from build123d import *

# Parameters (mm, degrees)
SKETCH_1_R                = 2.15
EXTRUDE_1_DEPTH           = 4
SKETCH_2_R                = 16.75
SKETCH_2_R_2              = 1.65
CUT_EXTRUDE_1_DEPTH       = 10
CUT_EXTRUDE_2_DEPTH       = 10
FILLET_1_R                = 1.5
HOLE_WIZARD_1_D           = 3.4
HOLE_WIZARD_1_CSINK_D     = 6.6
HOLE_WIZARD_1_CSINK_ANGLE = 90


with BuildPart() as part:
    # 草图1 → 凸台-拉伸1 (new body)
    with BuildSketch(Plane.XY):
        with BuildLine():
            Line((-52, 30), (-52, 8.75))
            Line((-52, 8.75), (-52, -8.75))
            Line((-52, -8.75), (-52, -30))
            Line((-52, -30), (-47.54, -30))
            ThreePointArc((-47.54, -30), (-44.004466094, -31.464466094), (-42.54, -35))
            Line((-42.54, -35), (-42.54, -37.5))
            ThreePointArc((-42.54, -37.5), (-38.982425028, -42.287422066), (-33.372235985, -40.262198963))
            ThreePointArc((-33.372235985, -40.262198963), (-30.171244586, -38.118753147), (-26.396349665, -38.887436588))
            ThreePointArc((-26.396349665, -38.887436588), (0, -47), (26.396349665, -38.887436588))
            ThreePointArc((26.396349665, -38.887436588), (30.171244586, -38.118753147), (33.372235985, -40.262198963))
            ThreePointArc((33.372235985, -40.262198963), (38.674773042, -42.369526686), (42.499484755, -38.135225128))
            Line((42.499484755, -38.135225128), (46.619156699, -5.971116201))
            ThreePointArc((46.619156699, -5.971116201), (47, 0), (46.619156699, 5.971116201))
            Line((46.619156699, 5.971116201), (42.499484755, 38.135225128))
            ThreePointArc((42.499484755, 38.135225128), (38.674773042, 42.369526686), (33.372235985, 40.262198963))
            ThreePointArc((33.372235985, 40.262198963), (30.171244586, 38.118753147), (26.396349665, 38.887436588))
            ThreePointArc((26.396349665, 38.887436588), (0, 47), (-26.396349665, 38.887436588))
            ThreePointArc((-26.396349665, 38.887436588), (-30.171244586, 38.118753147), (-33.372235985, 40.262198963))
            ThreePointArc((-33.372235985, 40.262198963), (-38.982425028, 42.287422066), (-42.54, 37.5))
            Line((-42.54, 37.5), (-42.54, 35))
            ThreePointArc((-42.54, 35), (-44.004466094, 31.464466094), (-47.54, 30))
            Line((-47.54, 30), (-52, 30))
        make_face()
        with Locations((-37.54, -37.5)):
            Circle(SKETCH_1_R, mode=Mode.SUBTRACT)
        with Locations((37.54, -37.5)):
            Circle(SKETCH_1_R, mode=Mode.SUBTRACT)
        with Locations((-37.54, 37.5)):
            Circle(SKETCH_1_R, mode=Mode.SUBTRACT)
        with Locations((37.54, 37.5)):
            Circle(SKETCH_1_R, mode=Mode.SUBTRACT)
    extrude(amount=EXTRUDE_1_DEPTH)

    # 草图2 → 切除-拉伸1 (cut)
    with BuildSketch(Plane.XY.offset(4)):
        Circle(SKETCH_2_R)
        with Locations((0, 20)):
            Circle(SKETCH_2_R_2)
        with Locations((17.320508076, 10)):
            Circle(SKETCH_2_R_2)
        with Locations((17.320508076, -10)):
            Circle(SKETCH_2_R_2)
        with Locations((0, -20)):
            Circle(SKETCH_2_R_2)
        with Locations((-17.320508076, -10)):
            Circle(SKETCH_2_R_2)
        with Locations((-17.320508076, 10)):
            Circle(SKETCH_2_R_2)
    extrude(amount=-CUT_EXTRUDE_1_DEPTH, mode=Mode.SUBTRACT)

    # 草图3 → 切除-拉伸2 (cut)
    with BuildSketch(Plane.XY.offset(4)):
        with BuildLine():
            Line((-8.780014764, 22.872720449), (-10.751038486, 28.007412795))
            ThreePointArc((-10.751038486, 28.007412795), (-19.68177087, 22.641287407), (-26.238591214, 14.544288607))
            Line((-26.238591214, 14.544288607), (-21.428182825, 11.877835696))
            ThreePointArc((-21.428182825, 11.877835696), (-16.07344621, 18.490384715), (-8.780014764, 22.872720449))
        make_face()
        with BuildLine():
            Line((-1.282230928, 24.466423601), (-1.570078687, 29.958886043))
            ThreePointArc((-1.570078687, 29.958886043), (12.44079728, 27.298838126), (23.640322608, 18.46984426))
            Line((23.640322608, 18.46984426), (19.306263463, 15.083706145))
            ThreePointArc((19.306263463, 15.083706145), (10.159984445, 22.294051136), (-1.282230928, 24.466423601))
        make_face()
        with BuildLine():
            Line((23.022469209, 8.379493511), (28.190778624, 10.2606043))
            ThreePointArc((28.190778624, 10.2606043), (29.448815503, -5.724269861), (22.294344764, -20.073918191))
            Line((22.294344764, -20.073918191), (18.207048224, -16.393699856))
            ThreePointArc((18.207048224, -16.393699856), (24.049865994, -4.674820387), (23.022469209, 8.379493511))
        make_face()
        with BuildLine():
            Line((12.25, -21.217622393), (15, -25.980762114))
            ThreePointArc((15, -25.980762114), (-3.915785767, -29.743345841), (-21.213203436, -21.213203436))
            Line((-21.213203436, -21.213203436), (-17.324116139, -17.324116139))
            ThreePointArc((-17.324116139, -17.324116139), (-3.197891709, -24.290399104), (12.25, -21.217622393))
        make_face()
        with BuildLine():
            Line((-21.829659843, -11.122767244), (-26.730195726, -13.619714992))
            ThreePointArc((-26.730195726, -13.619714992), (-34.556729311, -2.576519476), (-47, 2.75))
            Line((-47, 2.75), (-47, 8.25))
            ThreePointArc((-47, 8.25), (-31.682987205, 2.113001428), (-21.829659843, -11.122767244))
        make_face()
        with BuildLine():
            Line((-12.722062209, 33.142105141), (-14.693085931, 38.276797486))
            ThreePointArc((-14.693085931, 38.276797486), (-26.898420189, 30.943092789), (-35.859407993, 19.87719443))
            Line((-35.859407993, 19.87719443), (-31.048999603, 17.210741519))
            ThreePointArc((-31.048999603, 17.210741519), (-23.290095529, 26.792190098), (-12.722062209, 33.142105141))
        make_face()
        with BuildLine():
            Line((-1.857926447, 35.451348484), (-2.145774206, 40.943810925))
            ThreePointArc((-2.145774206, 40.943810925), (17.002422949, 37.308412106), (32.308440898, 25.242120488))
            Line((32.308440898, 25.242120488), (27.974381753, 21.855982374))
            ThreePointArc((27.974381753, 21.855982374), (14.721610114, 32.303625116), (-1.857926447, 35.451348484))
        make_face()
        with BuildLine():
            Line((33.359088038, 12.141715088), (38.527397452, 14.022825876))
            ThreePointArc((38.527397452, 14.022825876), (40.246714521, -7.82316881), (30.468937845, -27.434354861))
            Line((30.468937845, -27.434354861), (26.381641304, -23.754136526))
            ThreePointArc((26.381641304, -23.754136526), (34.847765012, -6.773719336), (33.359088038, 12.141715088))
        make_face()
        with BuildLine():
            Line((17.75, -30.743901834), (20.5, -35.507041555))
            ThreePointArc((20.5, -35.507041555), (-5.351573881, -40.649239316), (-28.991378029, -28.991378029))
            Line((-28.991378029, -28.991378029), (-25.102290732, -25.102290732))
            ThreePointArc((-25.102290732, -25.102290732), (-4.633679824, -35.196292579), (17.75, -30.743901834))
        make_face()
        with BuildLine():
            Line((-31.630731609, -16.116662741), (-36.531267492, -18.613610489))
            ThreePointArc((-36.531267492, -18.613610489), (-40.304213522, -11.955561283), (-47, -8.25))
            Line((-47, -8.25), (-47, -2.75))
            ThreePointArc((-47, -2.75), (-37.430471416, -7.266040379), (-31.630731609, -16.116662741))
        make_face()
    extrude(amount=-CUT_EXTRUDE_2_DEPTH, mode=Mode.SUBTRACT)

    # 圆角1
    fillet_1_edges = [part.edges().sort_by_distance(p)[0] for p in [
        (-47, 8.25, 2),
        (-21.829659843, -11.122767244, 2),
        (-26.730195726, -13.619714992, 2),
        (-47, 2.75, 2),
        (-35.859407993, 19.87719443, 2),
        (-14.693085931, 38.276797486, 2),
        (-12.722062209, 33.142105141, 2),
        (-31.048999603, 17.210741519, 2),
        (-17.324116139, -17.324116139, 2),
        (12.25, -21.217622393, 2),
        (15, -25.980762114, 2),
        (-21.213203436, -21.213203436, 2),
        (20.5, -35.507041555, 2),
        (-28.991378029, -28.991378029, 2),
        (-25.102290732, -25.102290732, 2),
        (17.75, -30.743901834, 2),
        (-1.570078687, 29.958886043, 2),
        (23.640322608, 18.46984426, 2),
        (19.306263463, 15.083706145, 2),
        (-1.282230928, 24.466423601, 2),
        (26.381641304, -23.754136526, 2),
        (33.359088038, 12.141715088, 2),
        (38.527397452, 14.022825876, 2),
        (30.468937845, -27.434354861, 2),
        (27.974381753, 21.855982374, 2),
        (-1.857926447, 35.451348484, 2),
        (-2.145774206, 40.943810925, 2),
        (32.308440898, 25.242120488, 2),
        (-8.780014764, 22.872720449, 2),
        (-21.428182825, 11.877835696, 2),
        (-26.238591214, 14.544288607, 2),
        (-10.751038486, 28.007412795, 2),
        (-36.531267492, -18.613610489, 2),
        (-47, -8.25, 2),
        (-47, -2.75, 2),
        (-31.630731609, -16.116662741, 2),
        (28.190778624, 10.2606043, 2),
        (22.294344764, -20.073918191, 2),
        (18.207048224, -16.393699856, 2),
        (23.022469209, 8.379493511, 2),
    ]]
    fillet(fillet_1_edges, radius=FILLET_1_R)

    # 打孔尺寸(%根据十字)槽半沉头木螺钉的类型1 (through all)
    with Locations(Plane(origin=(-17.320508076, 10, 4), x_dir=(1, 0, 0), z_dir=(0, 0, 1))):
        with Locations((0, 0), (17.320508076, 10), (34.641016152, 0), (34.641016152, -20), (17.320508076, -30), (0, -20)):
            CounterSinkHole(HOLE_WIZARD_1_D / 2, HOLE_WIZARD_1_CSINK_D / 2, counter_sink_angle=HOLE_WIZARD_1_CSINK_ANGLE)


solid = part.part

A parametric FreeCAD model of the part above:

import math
import FreeCAD as App
import Part
import Sketcher
Q = App.Units.Quantity


def edges_at(feature, points):
    """Names of the edges that pass closest to the given points."""
    edges = feature.Shape.Edges
    near = lambda p: min(range(len(edges)), key=lambda i: edges[i].distToShape(Part.Vertex(*p))[0])
    return sorted({f"Edge{near(p) + 1}" for p in points})

doc = App.newDocument("Part")
params = doc.addObject("Spreadsheet::Sheet", "Params")
for row, (alias, value) in enumerate([
    ("sketch1_radius", "5 mm"),
    ("sketch1_radius2", "47 mm"),
    ("sketch1_diameter", "4.3 mm"),
    ("sketch1_height", "60 mm"),
    ("sketch1_height2", "2.5 mm"),
    ("pad1_length", "4 mm"),
    ("sketch2_diameter", "33.5 mm"),
    ("sketch2_diameter2", "3.3 mm"),
    ("pocket1_length", "10 mm"),
    ("sketch3_radius", "30 mm"),
    ("sketch3_radius2", "41 mm"),
    ("sketch3_radius3", "24.5 mm"),
    ("sketch3_height", "5.5 mm"),
    ("pocket2_length", "10 mm"),
    ("fillet_radius", "1.5 mm"),
    ("sketch4_diameter", "3.4 mm"),
    ("hole_diameter", "3.4 mm"),
    ("hole_csink_diameter", "6.6 mm"),
], start=1):
    params.set(f"A{row}", alias)
    params.set(f"B{row}", "=" + value)
    params.setAlias(f"B{row}", alias)

body = doc.addObject("PartDesign::Body", "Body")

# Sketch on XY plane
sketch1 = doc.addObject("Sketcher::SketchObject", "Sketch")
body.addObject(sketch1)
sketch1.AttachmentSupport = (doc.XY_Plane, [""])
sketch1.MapMode = "FlatFace"
sketch1.addGeometry([
    Part.LineSegment(App.Vector(-52, 30, 0), App.Vector(-52, -30, 0)),  # 0
    Part.LineSegment(App.Vector(-52, -30, 0), App.Vector(-47.5, -30, 0)),  # 1
    Part.ArcOfCircle(Part.Circle(App.Vector(-47.5, -35, 0), App.Vector(0, 0, 1), 5), math.radians(0), math.radians(90)),  # 2
    Part.LineSegment(App.Vector(-42.5, -35, 0), App.Vector(-42.5, -37.5, 0)),  # 3
    Part.ArcOfCircle(Part.Circle(App.Vector(-37.5, -37.5, 0), App.Vector(0, 0, 1), 5), math.radians(180), math.radians(326)),  # 4
    Part.ArcOfCircle(Part.Circle(App.Vector(-29.2, -43, 0), App.Vector(0, 0, 1), 5), math.radians(56), math.radians(146)),  # 5
    Part.ArcOfCircle(Part.Circle(App.Vector(0, 0, 0), App.Vector(0, 0, 1), 47), math.radians(-124), math.radians(-56)),  # 6
    Part.ArcOfCircle(Part.Circle(App.Vector(29.2, -43, 0), App.Vector(0, 0, 1), 5), math.radians(34), math.radians(124)),  # 7
    Part.ArcOfCircle(Part.Circle(App.Vector(37.5, -37.5, 0), App.Vector(0, 0, 1), 5), math.radians(-146), math.radians(-7)),  # 8
    Part.LineSegment(App.Vector(42.5, -38.1, 0), App.Vector(46.6, -6, 0)),  # 9
    Part.ArcOfCircle(Part.Circle(App.Vector(0, 0, 0), App.Vector(0, 0, 1), 47), math.radians(-7.3), math.radians(7.3)),  # 10
    Part.LineSegment(App.Vector(46.6, 6, 0), App.Vector(42.5, 38.1, 0)),  # 11
    Part.ArcOfCircle(Part.Circle(App.Vector(37.5, 37.5, 0), App.Vector(0, 0, 1), 5), math.radians(7), math.radians(146)),  # 12
    Part.ArcOfCircle(Part.Circle(App.Vector(29.2, 43, 0), App.Vector(0, 0, 1), 5), math.radians(-124), math.radians(-34)),  # 13
    Part.ArcOfCircle(Part.Circle(App.Vector(0, 0, 0), App.Vector(0, 0, 1), 47), math.radians(56), math.radians(124)),  # 14
    Part.ArcOfCircle(Part.Circle(App.Vector(-29.2, 43, 0), App.Vector(0, 0, 1), 5), math.radians(-146), math.radians(-56)),  # 15
    Part.ArcOfCircle(Part.Circle(App.Vector(-37.5, 37.5, 0), App.Vector(0, 0, 1), 5), math.radians(34), math.radians(180)),  # 16
    Part.LineSegment(App.Vector(-42.5, 37.5, 0), App.Vector(-42.5, 35, 0)),  # 17
    Part.ArcOfCircle(Part.Circle(App.Vector(-47.5, 35, 0), App.Vector(0, 0, 1), 5), math.radians(-90), math.radians(0)),  # 18
    Part.LineSegment(App.Vector(-47.5, 30, 0), App.Vector(-52, 30, 0)),  # 19
    Part.Circle(App.Vector(-37.5, -37.5, 0), App.Vector(0, 0, 1), 2.1),  # 20
    Part.Circle(App.Vector(37.5, -37.5, 0), App.Vector(0, 0, 1), 2.1),  # 21
    Part.Circle(App.Vector(-37.5, 37.5, 0), App.Vector(0, 0, 1), 2.1),  # 22
    Part.Circle(App.Vector(37.5, 37.5, 0), App.Vector(0, 0, 1), 2.1),  # 23
], False)
sketch1.addConstraint([
    Sketcher.Constraint("Coincident", 0, 2, 1, 1),
    Sketcher.Constraint("Tangent", 1, 2, 2, 2),
    Sketcher.Constraint("Tangent", 2, 1, 3, 1),
    Sketcher.Constraint("Tangent", 3, 2, 4, 1),
    Sketcher.Constraint("Tangent", 4, 2, 5, 2),
    Sketcher.Constraint("Tangent", 5, 1, 6, 1),
    Sketcher.Constraint("Tangent", 6, 2, 7, 2),
    Sketcher.Constraint("Tangent", 7, 1, 8, 1),
    Sketcher.Constraint("Tangent", 8, 2, 9, 1),
    Sketcher.Constraint("Tangent", 9, 2, 10, 1),
    Sketcher.Constraint("Tangent", 10, 2, 11, 1),
    Sketcher.Constraint("Tangent", 11, 2, 12, 1),
    Sketcher.Constraint("Tangent", 12, 2, 13, 2),
    Sketcher.Constraint("Tangent", 13, 1, 14, 1),
    Sketcher.Constraint("Tangent", 14, 2, 15, 2),
    Sketcher.Constraint("Tangent", 15, 1, 16, 1),
    Sketcher.Constraint("Tangent", 16, 2, 17, 1),
    Sketcher.Constraint("Tangent", 17, 2, 18, 2),
    Sketcher.Constraint("Tangent", 18, 1, 19, 1),
    Sketcher.Constraint("Coincident", 19, 2, 0, 1),
    Sketcher.Constraint("Vertical", 0),
    Sketcher.Constraint("Horizontal", 1),
    Sketcher.Constraint("Vertical", 3),
    Sketcher.Constraint("Vertical", 17),
    Sketcher.Constraint("Horizontal", 19),
    Sketcher.Constraint("Coincident", 6, 3, -1, 1),
    Sketcher.Constraint("Coincident", 10, 3, -1, 1),
    Sketcher.Constraint("Coincident", 14, 3, -1, 1),
    Sketcher.Constraint("Coincident", 20, 3, 4, 3),
    Sketcher.Constraint("Coincident", 21, 3, 8, 3),
    Sketcher.Constraint("Coincident", 22, 3, 16, 3),
    Sketcher.Constraint("Coincident", 23, 3, 12, 3),
    Sketcher.Constraint("Equal", 2, 4),
    Sketcher.Constraint("Equal", 4, 5),
    Sketcher.Constraint("Equal", 5, 7),
    Sketcher.Constraint("Equal", 7, 8),
    Sketcher.Constraint("Equal", 6, 10),
    Sketcher.Constraint("Equal", 8, 12),
    Sketcher.Constraint("Equal", 12, 13),
    Sketcher.Constraint("Equal", 10, 14),
    Sketcher.Constraint("Equal", 13, 15),
    Sketcher.Constraint("Equal", 15, 16),
    Sketcher.Constraint("Equal", 16, 18),
    Sketcher.Constraint("Equal", 20, 21),
    Sketcher.Constraint("Equal", 21, 22),
    Sketcher.Constraint("Equal", 22, 23),
    Sketcher.Constraint("Symmetric", 4, 3, 12, 3, -1, 1),
    Sketcher.Constraint("Symmetric", 8, 3, 16, 3, -1, 1),
    Sketcher.Constraint("Symmetric", 4, 3, 8, 3, -2),
    Sketcher.Constraint("Equal", 3, 17),
    Sketcher.Constraint("Radius", 2, 5.0),
    Sketcher.Constraint("Radius", 6, 47.0),
    Sketcher.Constraint("Diameter", 20, 4.3),
    Sketcher.Constraint("DistanceY", 0, 2, 0, 1, 60.0),
    Sketcher.Constraint("DistanceY", 3, 2, 3, 1, 2.5),
    Sketcher.Constraint("DistanceX", 0, 2, -1, 1, 52.0),
    Sketcher.Constraint("DistanceX", 1, 1, 1, 2, 4.46),
])
sketch1.setExpression("Constraints[50]", "Params.sketch1_radius")
sketch1.setExpression("Constraints[51]", "Params.sketch1_radius2")
sketch1.setExpression("Constraints[52]", "Params.sketch1_diameter")
sketch1.setExpression("Constraints[53]", "Params.sketch1_height")
sketch1.setExpression("Constraints[54]", "Params.sketch1_height2")
pad1 = doc.addObject("PartDesign::Pad", "Pad")
body.addObject(pad1)
pad1.Profile = sketch1
pad1.setExpression("Length", "Params.pad1_length")

# Sketch on XY plane
sketch2 = doc.addObject("Sketcher::SketchObject", "Sketch001")
body.addObject(sketch2)
sketch2.AttachmentSupport = (doc.XY_Plane, [""])
sketch2.MapMode = "FlatFace"
sketch2.AttachmentOffset = App.Placement(App.Vector(0, 0, 4), App.Rotation())
sketch2.addGeometry([
    Part.Circle(App.Vector(0, 0, 0), App.Vector(0, 0, 1), 16.8),  # 0
    Part.Circle(App.Vector(0, 20, 0), App.Vector(0, 0, 1), 1.6),  # 1
    Part.Circle(App.Vector(17.3, 10, 0), App.Vector(0, 0, 1), 1.6),  # 2
    Part.Circle(App.Vector(17.3, -10, 0), App.Vector(0, 0, 1), 1.6),  # 3
    Part.Circle(App.Vector(0, -20, 0), App.Vector(0, 0, 1), 1.6),  # 4
    Part.Circle(App.Vector(-17.3, -10, 0), App.Vector(0, 0, 1), 1.6),  # 5
    Part.Circle(App.Vector(-17.3, 10, 0), App.Vector(0, 0, 1), 1.6),  # 6
], False)
sketch2.addConstraint([
    Sketcher.Constraint("Coincident", 0, 3, -1, 1),
    Sketcher.Constraint("Equal", 1, 2),
    Sketcher.Constraint("Equal", 2, 3),
    Sketcher.Constraint("Equal", 3, 4),
    Sketcher.Constraint("Equal", 4, 5),
    Sketcher.Constraint("Equal", 5, 6),
    Sketcher.Constraint("Symmetric", 1, 3, 4, 3, -1, 1),
    Sketcher.Constraint("Symmetric", 2, 3, 5, 3, -1, 1),
    Sketcher.Constraint("Symmetric", 3, 3, 6, 3, -1, 1),
    Sketcher.Constraint("Symmetric", 3, 3, 5, 3, -2),
    Sketcher.Constraint("PointOnObject", 1, 3, -2),
    Sketcher.Constraint("Diameter", 0, 33.5),
    Sketcher.Constraint("Diameter", 1, 3.3),
    Sketcher.Constraint("DistanceY", -1, 1, 1, 3, 20.0),
    Sketcher.Constraint("DistanceY", -1, 1, 2, 3, 10.0),
    Sketcher.Constraint("DistanceX", -1, 1, 2, 3, 17.320508),
])
sketch2.setExpression("Constraints[11]", "Params.sketch2_diameter")
sketch2.setExpression("Constraints[12]", "Params.sketch2_diameter2")
pocket1 = doc.addObject("PartDesign::Pocket", "Pocket")
body.addObject(pocket1)
pocket1.Profile = sketch2
pocket1.setExpression("Length", "Params.pocket1_length")

# Sketch on XY plane
sketch3 = doc.addObject("Sketcher::SketchObject", "Sketch002")
body.addObject(sketch3)
sketch3.AttachmentSupport = (doc.XY_Plane, [""])
sketch3.MapMode = "FlatFace"
sketch3.AttachmentOffset = App.Placement(App.Vector(0, 0, 4), App.Rotation())
sketch3.addGeometry([
    Part.LineSegment(App.Vector(-9, 23, 0), App.Vector(-11, 28, 0)),  # 0
    Part.ArcOfCircle(Part.Circle(App.Vector(0, 0, 0), App.Vector(0, 0, 1), 30), math.radians(111), math.radians(151)),  # 1
    Part.LineSegment(App.Vector(-26, 15, 0), App.Vector(-21, 12, 0)),  # 2
    Part.ArcOfCircle(Part.Circle(App.Vector(0, 0, 0), App.Vector(0, 0, 1), 25), math.radians(111), math.radians(151)),  # 3
    Part.LineSegment(App.Vector(-2, 30, 0), App.Vector(-1, 24, 0)),  # 4
    Part.ArcOfCircle(Part.Circle(App.Vector(0, 0, 0), App.Vector(0, 0, 1), 24), math.radians(38), math.radians(93)),  # 5
    Part.LineSegment(App.Vector(19, 15, 0), App.Vector(24, 18, 0)),  # 6
    Part.ArcOfCircle(Part.Circle(App.Vector(0, 0, 0), App.Vector(0, 0, 1), 30), math.radians(38), math.radians(93)),  # 7
    Part.LineSegment(App.Vector(28, 10, 0), App.Vector(23, 8, 0)),  # 8
    Part.ArcOfCircle(Part.Circle(App.Vector(0, 0, 0), App.Vector(0, 0, 1), 25), math.radians(-42), math.radians(20)),  # 9
    Part.LineSegment(App.Vector(18, -16, 0), App.Vector(22, -20, 0)),  # 10
    Part.ArcOfCircle(Part.Circle(App.Vector(0, 0, 0), App.Vector(0, 0, 1), 30), math.radians(-42), math.radians(20)),  # 11
    Part.LineSegment(App.Vector(15, -26, 0), App.Vector(12, -21, 0)),  # 12
    Part.ArcOfCircle(Part.Circle(App.Vector(0, 0, 0), App.Vector(0, 0, 1), 24), math.radians(-135), math.radians(-60)),  # 13
    Part.LineSegment(App.Vector(-17, -17, 0), App.Vector(-21, -21, 0)),  # 14
    Part.ArcOfCircle(Part.Circle(App.Vector(0, 0, 0), App.Vector(0, 0, 1), 30), math.radians(-135), math.radians(-60)),  # 15
    Part.LineSegment(App.Vector(-27, -14, 0), App.Vector(-22, -11, 0)),  # 16
    Part.ArcOfCircle(Part.Circle(App.Vector(-50, -22, 0), App.Vector(0, 0, 1), 30), math.radians(21), math.radians(84)),  # 17
    Part.LineSegment(App.Vector(-47, 8, 0), App.Vector(-47, 3, 0)),  # 18
    Part.ArcOfCircle(Part.Circle(App.Vector(-50, -22, 0), App.Vector(0, 0, 1), 25), math.radians(20), math.radians(83)),  # 19
    Part.LineSegment(App.Vector(-13, 33, 0), App.Vector(-15, 38, 0)),  # 20
    Part.ArcOfCircle(Part.Circle(App.Vector(0, 0, 0), App.Vector(0, 0, 1), 41), math.radians(111), math.radians(151)),  # 21
    Part.LineSegment(App.Vector(-36, 20, 0), App.Vector(-31, 17, 0)),  # 22
    Part.ArcOfCircle(Part.Circle(App.Vector(0, 0, 0), App.Vector(0, 0, 1), 36), math.radians(111), math.radians(151)),  # 23
    Part.LineSegment(App.Vector(-2, 41, 0), App.Vector(-2, 35, 0)),  # 24
    Part.ArcOfCircle(Part.Circle(App.Vector(0, 0, 0), App.Vector(0, 0, 1), 36), math.radians(38), math.radians(93)),  # 25
    Part.LineSegment(App.Vector(28, 22, 0), App.Vector(32, 25, 0)),  # 26
    Part.ArcOfCircle(Part.Circle(App.Vector(0, 0, 0), App.Vector(0, 0, 1), 41), math.radians(38), math.radians(93)),  # 27
    Part.LineSegment(App.Vector(39, 14, 0), App.Vector(33, 12, 0)),  # 28
    Part.ArcOfCircle(Part.Circle(App.Vector(0, 0, 0), App.Vector(0, 0, 1), 36), math.radians(-42), math.radians(20)),  # 29
    Part.LineSegment(App.Vector(26, -24, 0), App.Vector(30, -27, 0)),  # 30
    Part.ArcOfCircle(Part.Circle(App.Vector(0, 0, 0), App.Vector(0, 0, 1), 41), math.radians(-42), math.radians(20)),  # 31
    Part.LineSegment(App.Vector(20, -36, 0), App.Vector(18, -31, 0)),  # 32
    Part.ArcOfCircle(Part.Circle(App.Vector(0, 0, 0), App.Vector(0, 0, 1), 35), math.radians(-135), math.radians(-60)),  # 33
    Part.LineSegment(App.Vector(-25, -25, 0), App.Vector(-29, -29, 0)),  # 34
    Part.ArcOfCircle(Part.Circle(App.Vector(0, 0, 0), App.Vector(0, 0, 1), 41), math.radians(-135), math.radians(-60)),  # 35
    Part.LineSegment(App.Vector(-37, -19, 0), App.Vector(-32, -16, 0)),  # 36
    Part.ArcOfCircle(Part.Circle(App.Vector(-50, -22, 0), App.Vector(0, 0, 1), 19), math.radians(17), math.radians(80)),  # 37
    Part.LineSegment(App.Vector(-47, -3, 0), App.Vector(-47, -8, 0)),  # 38
    Part.ArcOfCircle(Part.Circle(App.Vector(-50, -22, 0), App.Vector(0, 0, 1), 14), math.radians(14), math.radians(77)),  # 39
], False)
sketch3.addConstraint([
    Sketcher.Constraint("Coincident", 0, 2, 1, 1),
    Sketcher.Constraint("Coincident", 1, 2, 2, 1),
    Sketcher.Constraint("Coincident", 2, 2, 3, 2),
    Sketcher.Constraint("Coincident", 3, 1, 0, 1),
    Sketcher.Constraint("Coincident", 4, 2, 5, 2),
    Sketcher.Constraint("Coincident", 5, 1, 6, 1),
    Sketcher.Constraint("Coincident", 6, 2, 7, 1),
    Sketcher.Constraint("Coincident", 7, 2, 4, 1),
    Sketcher.Constraint("Coincident", 8, 2, 9, 2),
    Sketcher.Constraint("Coincident", 9, 1, 10, 1),
    Sketcher.Constraint("Coincident", 10, 2, 11, 1),
    Sketcher.Constraint("Coincident", 11, 2, 8, 1),
    Sketcher.Constraint("Coincident", 12, 2, 13, 2),
    Sketcher.Constraint("Coincident", 13, 1, 14, 1),
    Sketcher.Constraint("Coincident", 14, 2, 15, 1),
    Sketcher.Constraint("Coincident", 15, 2, 12, 1),
    Sketcher.Constraint("Coincident", 16, 2, 17, 1),
    Sketcher.Constraint("Coincident", 17, 2, 18, 1),
    Sketcher.Constraint("Coincident", 18, 2, 19, 2),
    Sketcher.Constraint("Coincident", 19, 1, 16, 1),
    Sketcher.Constraint("Coincident", 20, 2, 21, 1),
    Sketcher.Constraint("Coincident", 21, 2, 22, 1),
    Sketcher.Constraint("Coincident", 22, 2, 23, 2),
    Sketcher.Constraint("Coincident", 23, 1, 20, 1),
    Sketcher.Constraint("Coincident", 24, 2, 25, 2),
    Sketcher.Constraint("Coincident", 25, 1, 26, 1),
    Sketcher.Constraint("Coincident", 26, 2, 27, 1),
    Sketcher.Constraint("Coincident", 27, 2, 24, 1),
    Sketcher.Constraint("Coincident", 28, 2, 29, 2),
    Sketcher.Constraint("Coincident", 29, 1, 30, 1),
    Sketcher.Constraint("Coincident", 30, 2, 31, 1),
    Sketcher.Constraint("Coincident", 31, 2, 28, 1),
    Sketcher.Constraint("Coincident", 32, 2, 33, 2),
    Sketcher.Constraint("Coincident", 33, 1, 34, 1),
    Sketcher.Constraint("Coincident", 34, 2, 35, 1),
    Sketcher.Constraint("Coincident", 35, 2, 32, 1),
    Sketcher.Constraint("Coincident", 36, 2, 37, 1),
    Sketcher.Constraint("Coincident", 37, 2, 38, 1),
    Sketcher.Constraint("Coincident", 38, 2, 39, 2),
    Sketcher.Constraint("Coincident", 39, 1, 36, 1),
    Sketcher.Constraint("Vertical", 18),
    Sketcher.Constraint("Vertical", 38),
    Sketcher.Constraint("Coincident", 1, 3, -1, 1),
    Sketcher.Constraint("Coincident", 3, 3, -1, 1),
    Sketcher.Constraint("Coincident", 5, 3, -1, 1),
    Sketcher.Constraint("Coincident", 7, 3, -1, 1),
    Sketcher.Constraint("Coincident", 9, 3, -1, 1),
    Sketcher.Constraint("Coincident", 11, 3, -1, 1),
    Sketcher.Constraint("Coincident", 13, 3, -1, 1),
    Sketcher.Constraint("Coincident", 15, 3, -1, 1),
    Sketcher.Constraint("Coincident", 21, 3, -1, 1),
    Sketcher.Constraint("Coincident", 23, 3, -1, 1),
    Sketcher.Constraint("Coincident", 25, 3, -1, 1),
    Sketcher.Constraint("Coincident", 27, 3, -1, 1),
    Sketcher.Constraint("Coincident", 29, 3, -1, 1),
    Sketcher.Constraint("Coincident", 31, 3, -1, 1),
    Sketcher.Constraint("Coincident", 33, 3, -1, 1),
    Sketcher.Constraint("Coincident", 35, 3, -1, 1),
    Sketcher.Constraint("Coincident", 19, 3, 17, 3),
    Sketcher.Constraint("Coincident", 37, 3, 17, 3),
    Sketcher.Constraint("Coincident", 39, 3, 17, 3),
    Sketcher.Constraint("Equal", 3, 5),
    Sketcher.Constraint("Equal", 1, 7),
    Sketcher.Constraint("Equal", 5, 9),
    Sketcher.Constraint("Equal", 7, 11),
    Sketcher.Constraint("Equal", 9, 13),
    Sketcher.Constraint("Equal", 11, 15),
    Sketcher.Constraint("Equal", 23, 25),
    Sketcher.Constraint("Equal", 21, 27),
    Sketcher.Constraint("Equal", 25, 29),
    Sketcher.Constraint("Equal", 27, 31),
    Sketcher.Constraint("Equal", 29, 33),
    Sketcher.Constraint("Equal", 31, 35),
    Sketcher.Constraint("Symmetric", 18, 2, 37, 2, -1),
    Sketcher.Constraint("Parallel", 0, 20),
    Sketcher.Constraint("Parallel", 2, 22),
    Sketcher.Constraint("Parallel", 4, 24),
    Sketcher.Constraint("Parallel", 6, 26),
    Sketcher.Constraint("Parallel", 8, 28),
    Sketcher.Constraint("Parallel", 10, 30),
    Sketcher.Constraint("Parallel", 12, 32),
    Sketcher.Constraint("Parallel", 14, 34),
    Sketcher.Constraint("Parallel", 16, 36),
    Sketcher.Constraint("Equal", 18, 38),
    Sketcher.Constraint("Equal", 14, 16),
    Sketcher.Constraint("Equal", 16, 20),
    Sketcher.Constraint("Equal", 34, 36),
    Sketcher.Constraint("Radius", 1, 30.0),
    Sketcher.Constraint("Radius", 21, 41.0),
    Sketcher.Constraint("Radius", 3, 24.5),
    Sketcher.Constraint("Angle", 0, Q("111 deg")),
    Sketcher.Constraint("Angle", 2, Q("-29 deg")),
    Sketcher.Constraint("Angle", 4, Q("-87 deg")),
    Sketcher.Constraint("Angle", 6, Q("38 deg")),
    Sketcher.Constraint("Angle", 8, Q("-160 deg")),
    Sketcher.Constraint("Angle", 10, Q("-42 deg")),
    Sketcher.Constraint("Angle", 12, Q("120 deg")),
    Sketcher.Constraint("Angle", 14, Q("-135 deg")),
    Sketcher.Constraint("Angle", 16, Q("27 deg")),
    Sketcher.Constraint("DistanceY", 18, 2, 18, 1, 5.5),
    Sketcher.Constraint("DistanceX", -1, 1, 15, 2, 15.0),
    Sketcher.Constraint("DistanceX", 17, 2, -1, 1, 47.0),
    Sketcher.Constraint("DistanceY", 37, 2, 17, 2, 11.0),
    Sketcher.Constraint("DistanceX", -1, 1, 35, 2, 20.5),
    Sketcher.Constraint("Radius", 37, 19.491589),
    Sketcher.Constraint("DistanceX", 22, 2, -1, 1, 31.049),
    Sketcher.Constraint("Radius", 17, 30.394726),
    Sketcher.Constraint("DistanceY", 9, 1, -1, 1, 16.3937),
    Sketcher.Constraint("DistanceY", 11, 2, 5, 1, 4.823102),
    Sketcher.Constraint("DistanceY", 13, 1, 19, 1, 3.704401),
    Sketcher.Constraint("DistanceY", 0, 2, 27, 2, 12.936398),
    Sketcher.Constraint("DistanceX", 0, 2, -1, 1, 10.751038),
    Sketcher.Constraint("DistanceX", 1, 2, -1, 1, 26.238591),
    Sketcher.Constraint("DistanceX", 4, 2, -1, 1, 1.282231),
    Sketcher.Constraint("DistanceX", -1, 1, 8, 2, 23.022469),
    Sketcher.Constraint("DistanceX", -1, 1, 25, 1, 27.974382),
    Sketcher.Constraint("DistanceX", -1, 1, 28, 2, 33.359088),
    Sketcher.Constraint("DistanceX", -1, 1, 29, 1, 26.381641),
    Sketcher.Constraint("DistanceX", 33, 1, -1, 1, 25.102291),
    Sketcher.Constraint("DistanceY", 7, 2, 20, 2, 8.317911),
])
sketch3.setExpression("Constraints[87]", "Params.sketch3_radius")
sketch3.setExpression("Constraints[88]", "Params.sketch3_radius2")
sketch3.setExpression("Constraints[89]", "Params.sketch3_radius3")
sketch3.setExpression("Constraints[99]", "Params.sketch3_height")
pocket2 = doc.addObject("PartDesign::Pocket", "Pocket001")
body.addObject(pocket2)
pocket2.Profile = sketch3
pocket2.setExpression("Length", "Params.pocket2_length")
doc.recompute()

fillet = doc.addObject("PartDesign::Fillet", "Fillet")
body.addObject(fillet)
fillet.Base = (pocket2, edges_at(pocket2, [
    (-47, 8.25, 2),
    (-21.83, -11.123, 2),
    (-26.73, -13.62, 2),
    (-47, 2.75, 2),
    (-35.859, 19.877, 2),
    (-14.693, 38.277, 2),
    (-12.722, 33.142, 2),
    (-31.049, 17.211, 2),
    (-17.324, -17.324, 2),
    (12.25, -21.218, 2),
    (15, -25.981, 2),
    (-21.213, -21.213, 2),
    (20.5, -35.507, 2),
    (-28.991, -28.991, 2),
    (-25.102, -25.102, 2),
    (17.75, -30.744, 2),
    (-1.57, 29.959, 2),
    (23.64, 18.47, 2),
    (19.306, 15.084, 2),
    (-1.282, 24.466, 2),
    (26.382, -23.754, 2),
    (33.359, 12.142, 2),
    (38.527, 14.023, 2),
    (30.469, -27.434, 2),
    (27.974, 21.856, 2),
    (-1.858, 35.451, 2),
    (-2.146, 40.944, 2),
    (32.308, 25.242, 2),
    (-8.78, 22.873, 2),
    (-21.428, 11.878, 2),
    (-26.239, 14.544, 2),
    (-10.751, 28.007, 2),
    (-36.531, -18.614, 2),
    (-47, -8.25, 2),
    (-47, -2.75, 2),
    (-31.631, -16.117, 2),
    (28.191, 10.261, 2),
    (22.294, -20.074, 2),
    (18.207, -16.394, 2),
    (23.022, 8.379, 2),
]))
fillet.setExpression("Radius", "Params.fillet_radius")

# Sketch on XY plane
sketch4 = doc.addObject("Sketcher::SketchObject", "Sketch003")
body.addObject(sketch4)
sketch4.AttachmentSupport = (doc.XY_Plane, [""])
sketch4.MapMode = "FlatFace"
sketch4.AttachmentOffset = App.Placement(App.Vector(0, 0, 4), App.Rotation())
sketch4.addGeometry([
    Part.Circle(App.Vector(-17.3, 10, 0), App.Vector(0, 0, 1), 1.7),  # 0
    Part.Circle(App.Vector(0, 20, 0), App.Vector(0, 0, 1), 1.7),  # 1
    Part.Circle(App.Vector(17.3, 10, 0), App.Vector(0, 0, 1), 1.7),  # 2
    Part.Circle(App.Vector(17.3, -10, 0), App.Vector(0, 0, 1), 1.7),  # 3
    Part.Circle(App.Vector(0, -20, 0), App.Vector(0, 0, 1), 1.7),  # 4
    Part.Circle(App.Vector(-17.3, -10, 0), App.Vector(0, 0, 1), 1.7),  # 5
], False)
sketch4.addConstraint([
    Sketcher.Constraint("Equal", 0, 1),
    Sketcher.Constraint("Equal", 1, 2),
    Sketcher.Constraint("Equal", 2, 3),
    Sketcher.Constraint("Equal", 3, 4),
    Sketcher.Constraint("Equal", 4, 5),
    Sketcher.Constraint("Symmetric", 0, 3, 3, 3, -1, 1),
    Sketcher.Constraint("Symmetric", 1, 3, 4, 3, -1, 1),
    Sketcher.Constraint("Symmetric", 2, 3, 5, 3, -1, 1),
    Sketcher.Constraint("Symmetric", 0, 3, 2, 3, -2),
    Sketcher.Constraint("PointOnObject", 1, 3, -2),
    Sketcher.Constraint("Diameter", 0, 3.4),
    Sketcher.Constraint("DistanceY", -1, 1, 0, 3, 10.0),
    Sketcher.Constraint("DistanceY", -1, 1, 1, 3, 20.0),
    Sketcher.Constraint("DistanceX", 0, 3, -1, 1, 17.320508),
])
sketch4.setExpression("Constraints[10]", "Params.sketch4_diameter")
doc.recompute()
hole = doc.addObject("PartDesign::Hole", "Hole")
body.addObject(hole)
hole.Profile = sketch4
hole.ThreadType = "None"
hole.setExpression("Diameter", "Params.hole_diameter")
hole.DepthType = "ThroughAll"
hole.HoleCutType = "Countersink"
hole.setExpression("HoleCutDiameter", "Params.hole_csink_diameter")
hole.HoleCutCountersinkAngle = 90

doc.recompute()
